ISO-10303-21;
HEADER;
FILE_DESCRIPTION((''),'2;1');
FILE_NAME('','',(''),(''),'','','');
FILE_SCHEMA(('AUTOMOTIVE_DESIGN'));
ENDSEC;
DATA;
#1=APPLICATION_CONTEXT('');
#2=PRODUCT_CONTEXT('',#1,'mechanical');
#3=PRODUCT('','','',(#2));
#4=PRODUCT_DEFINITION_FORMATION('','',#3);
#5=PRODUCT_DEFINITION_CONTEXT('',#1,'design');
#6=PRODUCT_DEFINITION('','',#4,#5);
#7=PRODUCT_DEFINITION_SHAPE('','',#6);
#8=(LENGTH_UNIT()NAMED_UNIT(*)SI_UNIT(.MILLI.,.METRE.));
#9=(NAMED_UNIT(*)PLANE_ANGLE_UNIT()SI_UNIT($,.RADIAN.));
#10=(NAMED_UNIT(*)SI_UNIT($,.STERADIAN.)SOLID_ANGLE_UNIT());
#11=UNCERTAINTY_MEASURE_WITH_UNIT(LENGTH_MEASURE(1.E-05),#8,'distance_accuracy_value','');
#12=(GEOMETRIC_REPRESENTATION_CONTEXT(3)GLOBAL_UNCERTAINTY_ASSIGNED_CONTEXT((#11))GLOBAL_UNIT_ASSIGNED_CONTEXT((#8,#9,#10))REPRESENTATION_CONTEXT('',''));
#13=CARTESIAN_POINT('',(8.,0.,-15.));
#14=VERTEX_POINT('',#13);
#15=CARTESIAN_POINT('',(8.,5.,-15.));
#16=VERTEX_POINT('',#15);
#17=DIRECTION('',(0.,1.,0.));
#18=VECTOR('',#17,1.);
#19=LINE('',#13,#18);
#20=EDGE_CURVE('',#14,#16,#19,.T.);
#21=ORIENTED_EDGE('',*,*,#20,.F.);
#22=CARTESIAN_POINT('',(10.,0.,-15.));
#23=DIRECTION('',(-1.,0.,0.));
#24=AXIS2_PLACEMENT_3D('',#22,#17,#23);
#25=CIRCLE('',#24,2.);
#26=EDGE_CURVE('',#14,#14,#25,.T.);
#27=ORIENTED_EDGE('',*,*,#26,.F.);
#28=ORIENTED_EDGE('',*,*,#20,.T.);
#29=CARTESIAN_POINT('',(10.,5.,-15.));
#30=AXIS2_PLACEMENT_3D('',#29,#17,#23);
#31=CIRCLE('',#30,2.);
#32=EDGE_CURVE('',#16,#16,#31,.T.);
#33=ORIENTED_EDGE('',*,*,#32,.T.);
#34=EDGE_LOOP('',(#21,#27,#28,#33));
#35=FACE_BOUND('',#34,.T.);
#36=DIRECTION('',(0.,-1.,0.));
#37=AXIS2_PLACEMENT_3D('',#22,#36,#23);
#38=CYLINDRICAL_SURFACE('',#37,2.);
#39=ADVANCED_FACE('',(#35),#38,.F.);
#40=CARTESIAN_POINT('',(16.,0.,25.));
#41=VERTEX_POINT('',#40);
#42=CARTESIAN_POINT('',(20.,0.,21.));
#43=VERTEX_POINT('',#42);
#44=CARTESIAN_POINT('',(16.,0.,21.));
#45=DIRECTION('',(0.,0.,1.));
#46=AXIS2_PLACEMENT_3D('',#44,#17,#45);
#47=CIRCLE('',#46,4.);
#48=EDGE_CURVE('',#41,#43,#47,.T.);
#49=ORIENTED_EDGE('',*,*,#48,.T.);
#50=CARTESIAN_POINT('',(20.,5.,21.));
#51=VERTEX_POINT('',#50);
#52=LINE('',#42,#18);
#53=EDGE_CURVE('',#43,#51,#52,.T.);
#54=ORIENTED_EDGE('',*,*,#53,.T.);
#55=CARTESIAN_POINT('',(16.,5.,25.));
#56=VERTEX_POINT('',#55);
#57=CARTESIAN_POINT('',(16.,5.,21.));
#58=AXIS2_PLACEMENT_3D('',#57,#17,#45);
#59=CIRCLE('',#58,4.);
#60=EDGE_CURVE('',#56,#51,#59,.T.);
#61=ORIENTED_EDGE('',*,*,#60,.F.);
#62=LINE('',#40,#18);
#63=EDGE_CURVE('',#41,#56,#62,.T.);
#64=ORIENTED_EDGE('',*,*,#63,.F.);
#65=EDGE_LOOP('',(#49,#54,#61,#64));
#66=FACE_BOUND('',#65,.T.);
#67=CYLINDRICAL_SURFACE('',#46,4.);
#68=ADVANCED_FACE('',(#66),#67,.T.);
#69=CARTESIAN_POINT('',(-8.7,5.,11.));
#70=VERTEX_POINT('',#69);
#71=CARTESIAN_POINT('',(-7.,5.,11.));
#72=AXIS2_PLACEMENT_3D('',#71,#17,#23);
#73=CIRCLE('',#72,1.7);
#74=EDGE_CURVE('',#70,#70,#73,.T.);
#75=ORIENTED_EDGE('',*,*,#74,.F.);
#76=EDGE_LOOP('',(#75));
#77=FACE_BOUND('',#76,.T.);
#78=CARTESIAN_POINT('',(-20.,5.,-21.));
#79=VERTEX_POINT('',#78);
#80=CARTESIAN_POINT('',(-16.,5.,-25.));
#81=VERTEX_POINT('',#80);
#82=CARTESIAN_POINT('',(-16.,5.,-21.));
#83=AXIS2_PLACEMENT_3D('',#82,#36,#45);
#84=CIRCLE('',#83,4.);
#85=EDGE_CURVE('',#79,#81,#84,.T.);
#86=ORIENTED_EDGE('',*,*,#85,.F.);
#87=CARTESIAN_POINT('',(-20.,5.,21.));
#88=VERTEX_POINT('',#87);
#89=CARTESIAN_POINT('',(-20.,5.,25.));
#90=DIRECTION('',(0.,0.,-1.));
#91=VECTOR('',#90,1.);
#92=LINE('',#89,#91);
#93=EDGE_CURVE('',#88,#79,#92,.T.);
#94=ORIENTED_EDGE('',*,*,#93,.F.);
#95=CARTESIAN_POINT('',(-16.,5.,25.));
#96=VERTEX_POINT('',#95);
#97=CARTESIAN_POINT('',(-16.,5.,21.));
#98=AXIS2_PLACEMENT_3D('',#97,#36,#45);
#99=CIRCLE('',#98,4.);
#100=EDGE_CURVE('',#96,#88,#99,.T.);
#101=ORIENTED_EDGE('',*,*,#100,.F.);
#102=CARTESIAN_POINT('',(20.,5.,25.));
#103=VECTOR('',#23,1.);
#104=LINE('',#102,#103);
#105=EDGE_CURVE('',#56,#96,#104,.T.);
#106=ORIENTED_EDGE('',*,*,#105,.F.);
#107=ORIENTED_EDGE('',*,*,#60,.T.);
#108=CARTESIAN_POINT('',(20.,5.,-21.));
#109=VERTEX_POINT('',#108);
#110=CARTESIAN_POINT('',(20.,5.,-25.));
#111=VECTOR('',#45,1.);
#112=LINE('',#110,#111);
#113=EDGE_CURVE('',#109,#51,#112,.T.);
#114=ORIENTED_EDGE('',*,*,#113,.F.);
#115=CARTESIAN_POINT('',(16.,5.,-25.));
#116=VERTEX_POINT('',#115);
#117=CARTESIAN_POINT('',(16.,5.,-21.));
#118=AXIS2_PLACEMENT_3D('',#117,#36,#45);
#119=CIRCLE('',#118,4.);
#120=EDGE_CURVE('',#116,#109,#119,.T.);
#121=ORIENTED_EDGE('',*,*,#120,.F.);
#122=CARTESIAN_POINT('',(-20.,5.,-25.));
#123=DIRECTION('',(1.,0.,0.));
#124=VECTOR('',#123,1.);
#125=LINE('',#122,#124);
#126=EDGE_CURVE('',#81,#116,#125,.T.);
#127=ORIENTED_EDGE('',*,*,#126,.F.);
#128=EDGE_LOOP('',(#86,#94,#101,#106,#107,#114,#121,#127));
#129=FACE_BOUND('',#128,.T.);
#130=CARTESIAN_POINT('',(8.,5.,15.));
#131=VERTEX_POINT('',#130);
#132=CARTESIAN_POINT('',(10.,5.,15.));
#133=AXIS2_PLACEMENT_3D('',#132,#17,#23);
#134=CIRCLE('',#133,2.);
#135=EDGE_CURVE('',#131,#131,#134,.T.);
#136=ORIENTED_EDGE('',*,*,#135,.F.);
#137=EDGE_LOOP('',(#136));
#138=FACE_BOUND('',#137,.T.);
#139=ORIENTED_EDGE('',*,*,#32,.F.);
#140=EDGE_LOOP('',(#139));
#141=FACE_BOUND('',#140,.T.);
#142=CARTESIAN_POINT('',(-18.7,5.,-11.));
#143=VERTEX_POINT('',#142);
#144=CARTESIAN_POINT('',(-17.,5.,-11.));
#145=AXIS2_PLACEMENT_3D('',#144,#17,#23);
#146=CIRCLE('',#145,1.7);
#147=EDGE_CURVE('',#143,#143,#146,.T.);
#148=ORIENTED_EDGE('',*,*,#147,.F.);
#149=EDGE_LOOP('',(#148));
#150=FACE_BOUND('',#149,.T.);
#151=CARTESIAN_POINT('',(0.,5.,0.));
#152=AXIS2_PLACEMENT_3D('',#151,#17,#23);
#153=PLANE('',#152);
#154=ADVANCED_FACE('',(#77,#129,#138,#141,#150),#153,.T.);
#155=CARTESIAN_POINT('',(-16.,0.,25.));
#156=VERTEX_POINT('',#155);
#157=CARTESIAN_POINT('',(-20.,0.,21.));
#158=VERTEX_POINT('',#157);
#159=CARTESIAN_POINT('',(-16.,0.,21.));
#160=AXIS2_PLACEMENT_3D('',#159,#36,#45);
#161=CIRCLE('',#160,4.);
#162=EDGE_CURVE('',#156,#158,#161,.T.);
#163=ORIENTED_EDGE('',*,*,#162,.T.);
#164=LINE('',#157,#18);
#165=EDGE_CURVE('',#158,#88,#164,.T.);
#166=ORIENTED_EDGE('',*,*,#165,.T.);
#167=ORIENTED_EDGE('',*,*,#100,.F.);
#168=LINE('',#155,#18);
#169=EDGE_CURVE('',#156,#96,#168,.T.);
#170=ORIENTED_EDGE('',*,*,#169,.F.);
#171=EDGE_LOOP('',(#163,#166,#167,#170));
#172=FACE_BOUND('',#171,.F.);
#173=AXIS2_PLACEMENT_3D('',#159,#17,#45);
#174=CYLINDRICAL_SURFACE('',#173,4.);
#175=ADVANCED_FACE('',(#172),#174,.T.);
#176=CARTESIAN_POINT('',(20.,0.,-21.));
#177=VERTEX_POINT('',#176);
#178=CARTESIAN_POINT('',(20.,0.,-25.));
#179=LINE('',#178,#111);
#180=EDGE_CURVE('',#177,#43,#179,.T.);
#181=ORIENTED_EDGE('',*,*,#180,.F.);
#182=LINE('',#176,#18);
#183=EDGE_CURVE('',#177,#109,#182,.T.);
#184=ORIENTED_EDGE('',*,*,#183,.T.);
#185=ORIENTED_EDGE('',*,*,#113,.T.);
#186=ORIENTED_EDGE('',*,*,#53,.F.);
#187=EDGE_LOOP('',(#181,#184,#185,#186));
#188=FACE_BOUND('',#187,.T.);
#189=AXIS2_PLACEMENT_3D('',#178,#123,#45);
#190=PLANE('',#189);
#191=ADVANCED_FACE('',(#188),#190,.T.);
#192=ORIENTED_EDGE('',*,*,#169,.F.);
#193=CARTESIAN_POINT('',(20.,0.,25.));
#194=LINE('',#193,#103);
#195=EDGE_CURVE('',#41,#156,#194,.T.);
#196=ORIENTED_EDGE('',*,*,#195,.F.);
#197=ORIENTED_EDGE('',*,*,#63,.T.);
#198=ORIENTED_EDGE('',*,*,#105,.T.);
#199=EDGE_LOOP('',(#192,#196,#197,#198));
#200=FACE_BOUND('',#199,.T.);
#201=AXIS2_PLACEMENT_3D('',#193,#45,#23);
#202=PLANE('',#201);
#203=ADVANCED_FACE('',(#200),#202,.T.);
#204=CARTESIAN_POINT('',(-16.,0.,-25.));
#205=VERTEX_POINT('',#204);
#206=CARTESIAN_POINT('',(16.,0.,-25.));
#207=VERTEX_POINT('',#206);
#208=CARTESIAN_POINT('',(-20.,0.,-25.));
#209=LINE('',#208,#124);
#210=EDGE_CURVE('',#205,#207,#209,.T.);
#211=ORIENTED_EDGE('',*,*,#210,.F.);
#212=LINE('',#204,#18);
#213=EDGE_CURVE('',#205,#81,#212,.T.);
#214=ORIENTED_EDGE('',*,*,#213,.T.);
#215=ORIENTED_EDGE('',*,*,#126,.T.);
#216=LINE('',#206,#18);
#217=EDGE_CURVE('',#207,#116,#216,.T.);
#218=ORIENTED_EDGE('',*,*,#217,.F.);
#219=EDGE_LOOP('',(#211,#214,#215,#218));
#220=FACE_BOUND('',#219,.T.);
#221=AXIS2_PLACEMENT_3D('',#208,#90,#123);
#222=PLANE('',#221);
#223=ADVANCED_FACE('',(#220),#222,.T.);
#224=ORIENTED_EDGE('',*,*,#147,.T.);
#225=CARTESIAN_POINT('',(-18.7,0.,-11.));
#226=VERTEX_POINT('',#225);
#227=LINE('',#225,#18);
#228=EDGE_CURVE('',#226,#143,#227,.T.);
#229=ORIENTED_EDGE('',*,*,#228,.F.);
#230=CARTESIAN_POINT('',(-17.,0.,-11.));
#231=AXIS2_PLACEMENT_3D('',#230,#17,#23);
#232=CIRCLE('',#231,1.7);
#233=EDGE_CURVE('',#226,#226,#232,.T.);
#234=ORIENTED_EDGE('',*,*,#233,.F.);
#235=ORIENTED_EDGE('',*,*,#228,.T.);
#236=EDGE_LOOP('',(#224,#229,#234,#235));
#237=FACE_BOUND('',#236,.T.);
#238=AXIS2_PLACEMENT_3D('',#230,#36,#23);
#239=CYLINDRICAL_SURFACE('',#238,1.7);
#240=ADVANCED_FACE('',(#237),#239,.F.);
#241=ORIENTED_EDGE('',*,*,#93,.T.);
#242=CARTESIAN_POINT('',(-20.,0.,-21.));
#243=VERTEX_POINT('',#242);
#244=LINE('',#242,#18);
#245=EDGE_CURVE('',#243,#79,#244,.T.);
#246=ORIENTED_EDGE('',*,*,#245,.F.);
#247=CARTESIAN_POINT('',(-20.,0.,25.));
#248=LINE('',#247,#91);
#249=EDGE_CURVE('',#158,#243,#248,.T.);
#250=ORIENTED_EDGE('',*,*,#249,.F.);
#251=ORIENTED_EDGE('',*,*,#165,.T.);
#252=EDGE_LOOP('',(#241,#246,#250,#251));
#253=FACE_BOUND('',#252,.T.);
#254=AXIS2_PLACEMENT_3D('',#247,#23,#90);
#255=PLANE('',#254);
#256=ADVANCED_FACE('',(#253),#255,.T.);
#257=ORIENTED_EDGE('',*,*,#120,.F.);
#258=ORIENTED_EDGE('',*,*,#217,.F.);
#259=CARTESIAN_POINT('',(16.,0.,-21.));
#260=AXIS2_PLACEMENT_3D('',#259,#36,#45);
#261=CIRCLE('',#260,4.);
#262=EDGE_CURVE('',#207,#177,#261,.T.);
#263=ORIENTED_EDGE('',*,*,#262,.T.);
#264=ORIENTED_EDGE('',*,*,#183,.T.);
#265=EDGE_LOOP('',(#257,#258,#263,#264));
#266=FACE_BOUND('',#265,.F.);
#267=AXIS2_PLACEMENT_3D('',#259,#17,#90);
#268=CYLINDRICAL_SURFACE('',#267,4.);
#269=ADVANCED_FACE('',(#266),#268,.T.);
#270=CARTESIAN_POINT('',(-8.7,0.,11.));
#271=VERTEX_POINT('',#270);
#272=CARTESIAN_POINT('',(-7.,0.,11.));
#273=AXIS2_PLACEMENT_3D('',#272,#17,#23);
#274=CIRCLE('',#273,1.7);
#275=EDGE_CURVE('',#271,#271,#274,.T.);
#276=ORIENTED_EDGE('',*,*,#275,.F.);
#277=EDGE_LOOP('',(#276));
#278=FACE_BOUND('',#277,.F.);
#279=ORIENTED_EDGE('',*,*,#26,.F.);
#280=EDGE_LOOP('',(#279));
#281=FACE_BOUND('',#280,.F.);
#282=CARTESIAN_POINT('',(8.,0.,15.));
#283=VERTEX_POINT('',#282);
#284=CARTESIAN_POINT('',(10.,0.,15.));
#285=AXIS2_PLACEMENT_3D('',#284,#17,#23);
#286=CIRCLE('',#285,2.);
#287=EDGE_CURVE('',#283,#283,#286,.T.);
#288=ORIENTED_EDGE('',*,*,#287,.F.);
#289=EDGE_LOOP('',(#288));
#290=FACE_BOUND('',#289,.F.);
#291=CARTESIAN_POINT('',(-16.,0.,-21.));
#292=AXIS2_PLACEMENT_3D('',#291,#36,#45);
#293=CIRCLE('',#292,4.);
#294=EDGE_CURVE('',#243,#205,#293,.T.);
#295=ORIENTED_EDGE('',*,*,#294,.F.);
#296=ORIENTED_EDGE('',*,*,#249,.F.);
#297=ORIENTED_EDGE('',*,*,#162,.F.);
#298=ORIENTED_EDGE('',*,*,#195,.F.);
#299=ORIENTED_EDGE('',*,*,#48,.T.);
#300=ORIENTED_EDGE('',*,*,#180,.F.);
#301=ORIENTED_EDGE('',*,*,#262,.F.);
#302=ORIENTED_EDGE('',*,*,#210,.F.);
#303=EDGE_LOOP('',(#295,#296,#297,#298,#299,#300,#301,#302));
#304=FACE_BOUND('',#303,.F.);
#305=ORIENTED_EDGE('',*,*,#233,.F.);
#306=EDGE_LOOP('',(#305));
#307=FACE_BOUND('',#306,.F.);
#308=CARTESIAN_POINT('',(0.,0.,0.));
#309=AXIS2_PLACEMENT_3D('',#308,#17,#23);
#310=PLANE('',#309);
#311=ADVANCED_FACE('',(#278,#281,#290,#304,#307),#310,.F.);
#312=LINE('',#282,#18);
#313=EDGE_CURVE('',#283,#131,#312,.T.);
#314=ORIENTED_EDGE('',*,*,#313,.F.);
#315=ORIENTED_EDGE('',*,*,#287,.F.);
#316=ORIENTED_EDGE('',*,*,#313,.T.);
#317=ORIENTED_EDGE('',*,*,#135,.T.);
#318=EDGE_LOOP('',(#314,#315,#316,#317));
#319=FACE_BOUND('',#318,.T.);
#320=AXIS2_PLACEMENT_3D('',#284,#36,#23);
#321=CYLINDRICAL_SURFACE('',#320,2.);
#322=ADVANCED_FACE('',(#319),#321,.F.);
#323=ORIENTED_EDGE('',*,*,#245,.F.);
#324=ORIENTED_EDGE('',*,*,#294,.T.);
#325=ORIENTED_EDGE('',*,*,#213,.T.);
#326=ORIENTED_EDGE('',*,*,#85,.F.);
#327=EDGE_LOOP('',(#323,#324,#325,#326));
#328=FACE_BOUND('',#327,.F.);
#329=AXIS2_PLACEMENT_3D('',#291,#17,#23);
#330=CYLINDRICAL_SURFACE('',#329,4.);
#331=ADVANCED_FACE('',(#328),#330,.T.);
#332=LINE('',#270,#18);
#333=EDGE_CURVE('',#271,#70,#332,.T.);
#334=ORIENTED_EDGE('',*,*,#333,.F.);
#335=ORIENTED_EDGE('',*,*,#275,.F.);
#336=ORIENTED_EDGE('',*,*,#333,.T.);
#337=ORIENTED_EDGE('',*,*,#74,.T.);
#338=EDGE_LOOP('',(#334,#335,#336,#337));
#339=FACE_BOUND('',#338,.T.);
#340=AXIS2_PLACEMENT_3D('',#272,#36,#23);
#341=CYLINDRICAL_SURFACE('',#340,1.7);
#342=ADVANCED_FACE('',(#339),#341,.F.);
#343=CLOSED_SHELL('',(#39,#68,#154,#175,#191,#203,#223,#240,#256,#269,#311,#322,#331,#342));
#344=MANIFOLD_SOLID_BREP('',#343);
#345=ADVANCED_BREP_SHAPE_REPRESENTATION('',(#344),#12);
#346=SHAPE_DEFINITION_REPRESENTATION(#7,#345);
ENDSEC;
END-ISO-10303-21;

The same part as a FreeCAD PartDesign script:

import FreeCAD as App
import Part
import Sketcher
from FreeCAD import Vector
Q = App.Units.Quantity


def edges_at(feature, points):
    """Names of the edges that pass closest to the given points."""
    edges = feature.Shape.Edges
    near = lambda p: min(range(len(edges)), key=lambda i: edges[i].distToShape(Part.Vertex(*p))[0])
    return sorted({f"Edge{near(p) + 1}" for p in points})


def add_polygon(sketch, points):
    """Adds a closed chain of lines whose ends are joined by coincident constraints."""
    first, n = sketch.GeometryCount, len(points)
    for a, b in zip(points, points[1:] + points[:1]):
        sketch.addGeometry(Part.LineSegment(App.Vector(*a, 0), App.Vector(*b, 0)), False)
    for i in range(n):
        sketch.addConstraint(Sketcher.Constraint("Coincident", first + i, 2, first + (i + 1) % n, 1))

doc = App.newDocument("Part")
body = doc.addObject("PartDesign::Body", "Body")

# Sketch on XZ plane
sketch1 = body.newObject("Sketcher::SketchObject", "Sketch")
sketch1.AttachmentSupport = (doc.getObject("XZ_Plane"), [""])
sketch1.MapMode = "FlatFace"
add_polygon(sketch1, [(-20, 25), (20, 25), (20, -25), (-20, -25)])  # lines 0-3
sketch1.addGeometry(Part.Circle(Vector(10, -15, 0), Vector(0, 0, 1), 2), False)  # 4
sketch1.addGeometry(Part.Circle(Vector(-17, -11, 0), Vector(0, 0, 1), 1.7), False)  # 5
sketch1.addGeometry(Part.Circle(Vector(10, 15, 0), Vector(0, 0, 1), 2), False)  # 6
sketch1.addGeometry(Part.Circle(Vector(-7, 11, 0), Vector(0, 0, 1), 1.7), False)  # 7
sketch1.addConstraint([
    Sketcher.Constraint("Horizontal", 0),
    Sketcher.Constraint("Vertical", 1),
    Sketcher.Constraint("Horizontal", 2),
    Sketcher.Constraint("Vertical", 3),
    Sketcher.Constraint("Equal", 4, 6),
    Sketcher.Constraint("Equal", 5, 7),
    Sketcher.Constraint("Symmetric", 0, 2, 2, 2, -1, 1),
    Sketcher.Constraint("Symmetric", 4, 3, 6, 3, -1),
    Sketcher.Constraint("Diameter", 4, Q("4 mm")),
    Sketcher.Constraint("DistanceX", 0, 1, 0, 2, Q("40 mm")),
    Sketcher.Constraint("DistanceY", 1, 2, 1, 1, Q("50 mm")),
    Sketcher.Constraint("DistanceX", -1, 1, 4, 3, Q("10 mm")),
    Sketcher.Constraint("DistanceY", 4, 3, 5, 3, Q("4 mm")),
    Sketcher.Constraint("DistanceY", 7, 3, 6, 3, Q("4 mm")),
    Sketcher.Constraint("DistanceX", 5, 3, 7, 3, Q("10 mm")),
    Sketcher.Constraint("DistanceY", 6, 3, 0, 2, Q("10 mm")),
    Sketcher.Constraint("Diameter", 5, Q("3.4 mm")),
    Sketcher.Constraint("DistanceX", 5, 3, -1, 1, Q("17 mm")),
])
pad1 = body.newObject("PartDesign::Pad", "Pad")
pad1.Profile = sketch1
pad1.Length = 5
pad1.Reversed = True
doc.recompute()

fillet = body.newObject("PartDesign::Fillet", "Fillet")
fillet.Base = (pad1, edges_at(pad1, [
    (20, 2.5, -25),
    (20, 2.5, 25),
    (-20, 2.5, -25),
    (-20, 2.5, 25),
]))
fillet.Radius = 4

doc.recompute()
